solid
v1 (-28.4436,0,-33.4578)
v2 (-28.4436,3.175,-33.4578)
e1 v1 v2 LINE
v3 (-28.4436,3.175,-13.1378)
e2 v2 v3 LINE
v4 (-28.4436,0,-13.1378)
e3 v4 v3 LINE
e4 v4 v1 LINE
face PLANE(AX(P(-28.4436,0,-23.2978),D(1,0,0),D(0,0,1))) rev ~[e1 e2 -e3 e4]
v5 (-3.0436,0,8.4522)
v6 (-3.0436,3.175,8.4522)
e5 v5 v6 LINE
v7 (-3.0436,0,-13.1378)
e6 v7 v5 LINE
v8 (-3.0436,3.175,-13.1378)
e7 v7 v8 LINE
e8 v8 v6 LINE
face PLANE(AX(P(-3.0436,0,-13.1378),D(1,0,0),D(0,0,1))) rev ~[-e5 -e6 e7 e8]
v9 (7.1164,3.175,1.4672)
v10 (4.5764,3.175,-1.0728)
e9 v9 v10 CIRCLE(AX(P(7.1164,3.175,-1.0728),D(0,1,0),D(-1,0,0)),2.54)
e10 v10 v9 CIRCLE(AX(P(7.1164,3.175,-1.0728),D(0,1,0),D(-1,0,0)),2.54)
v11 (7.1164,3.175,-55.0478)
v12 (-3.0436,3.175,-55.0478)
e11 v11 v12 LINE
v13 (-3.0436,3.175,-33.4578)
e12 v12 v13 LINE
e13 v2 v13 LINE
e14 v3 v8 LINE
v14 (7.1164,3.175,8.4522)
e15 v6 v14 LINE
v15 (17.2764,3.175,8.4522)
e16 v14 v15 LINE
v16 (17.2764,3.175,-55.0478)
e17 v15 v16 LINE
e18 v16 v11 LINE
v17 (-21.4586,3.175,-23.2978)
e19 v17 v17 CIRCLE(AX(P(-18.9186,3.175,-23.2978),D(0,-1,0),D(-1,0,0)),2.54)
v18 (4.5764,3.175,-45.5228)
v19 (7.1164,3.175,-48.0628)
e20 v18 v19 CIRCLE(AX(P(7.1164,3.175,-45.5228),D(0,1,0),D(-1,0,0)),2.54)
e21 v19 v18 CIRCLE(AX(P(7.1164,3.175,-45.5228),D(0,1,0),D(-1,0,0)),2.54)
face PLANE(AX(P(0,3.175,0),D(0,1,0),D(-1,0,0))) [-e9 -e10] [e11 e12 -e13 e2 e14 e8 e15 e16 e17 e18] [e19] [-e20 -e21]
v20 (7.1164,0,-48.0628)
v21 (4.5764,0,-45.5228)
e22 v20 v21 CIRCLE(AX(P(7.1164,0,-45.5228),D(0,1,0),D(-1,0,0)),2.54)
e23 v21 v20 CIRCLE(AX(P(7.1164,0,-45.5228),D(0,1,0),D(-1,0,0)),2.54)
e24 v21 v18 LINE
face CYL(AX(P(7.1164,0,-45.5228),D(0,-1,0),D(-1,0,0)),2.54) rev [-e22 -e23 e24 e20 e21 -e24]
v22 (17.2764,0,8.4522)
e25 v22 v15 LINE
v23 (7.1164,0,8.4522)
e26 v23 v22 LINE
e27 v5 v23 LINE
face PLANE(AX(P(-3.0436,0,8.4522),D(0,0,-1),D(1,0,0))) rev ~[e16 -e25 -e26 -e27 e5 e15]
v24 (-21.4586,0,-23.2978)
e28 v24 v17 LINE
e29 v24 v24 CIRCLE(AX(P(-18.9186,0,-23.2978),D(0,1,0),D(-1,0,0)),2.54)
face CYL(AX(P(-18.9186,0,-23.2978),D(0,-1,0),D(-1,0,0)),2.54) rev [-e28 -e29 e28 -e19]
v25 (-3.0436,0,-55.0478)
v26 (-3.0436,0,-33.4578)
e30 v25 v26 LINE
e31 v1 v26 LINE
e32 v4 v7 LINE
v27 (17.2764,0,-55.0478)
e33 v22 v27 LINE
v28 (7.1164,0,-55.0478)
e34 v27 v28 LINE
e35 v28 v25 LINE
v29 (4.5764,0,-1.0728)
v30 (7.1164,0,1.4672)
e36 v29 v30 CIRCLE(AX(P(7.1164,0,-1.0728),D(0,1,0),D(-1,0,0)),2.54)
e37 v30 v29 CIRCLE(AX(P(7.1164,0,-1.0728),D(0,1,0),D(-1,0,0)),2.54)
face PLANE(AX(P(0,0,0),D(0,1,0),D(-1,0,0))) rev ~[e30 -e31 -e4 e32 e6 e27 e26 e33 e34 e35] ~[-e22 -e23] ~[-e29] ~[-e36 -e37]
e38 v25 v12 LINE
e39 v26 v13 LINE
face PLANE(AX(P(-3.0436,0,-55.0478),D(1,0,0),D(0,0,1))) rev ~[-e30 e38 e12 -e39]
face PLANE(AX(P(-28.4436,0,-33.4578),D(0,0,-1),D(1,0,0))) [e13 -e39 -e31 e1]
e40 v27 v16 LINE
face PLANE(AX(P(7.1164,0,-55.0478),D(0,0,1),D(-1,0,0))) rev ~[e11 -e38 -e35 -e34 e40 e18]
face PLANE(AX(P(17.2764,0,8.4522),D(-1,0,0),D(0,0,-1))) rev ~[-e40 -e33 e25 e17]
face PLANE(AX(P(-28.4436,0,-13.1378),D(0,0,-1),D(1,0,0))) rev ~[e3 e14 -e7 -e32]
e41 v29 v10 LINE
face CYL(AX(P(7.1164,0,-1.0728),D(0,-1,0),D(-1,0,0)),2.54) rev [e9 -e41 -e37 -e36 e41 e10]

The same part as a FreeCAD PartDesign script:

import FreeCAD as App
import Part
import Sketcher
Q = App.Units.Quantity


def add_polygon(sketch, points):
    """Adds a closed chain of lines whose ends are joined by coincident constraints."""
    first, n = sketch.GeometryCount, len(points)
    for a, b in zip(points, points[1:] + points[:1]):
        sketch.addGeometry(Part.LineSegment(App.Vector(*a, 0), App.Vector(*b, 0)), False)
    for i in range(n):
        sketch.addConstraint(Sketcher.Constraint("Coincident", first + i, 2, first + (i + 1) % n, 1))

doc = App.newDocument("Part")
body = doc.addObject("PartDesign::Body", "Body")

# Sketch on XZ plane
sketch1 = body.newObject("Sketcher::SketchObject", "Sketch")
sketch1.AttachmentSupport = (doc.getObject("XZ_Plane"), [""])
sketch1.MapMode = "FlatFace"
add_polygon(sketch1, [(-3, -13.1), (-3, 8.5), (7.1, 8.5), (17.3, 8.5), (17.3, -55), (7.1, -55), (-3, -55), (-3, -33.5), (-28.4, -33.5), (-28.4, -13.1)])  # lines 0-9
sketch1.addGeometry(Part.Circle(App.Vector(7.1, -45.5, 0), App.Vector(0, 0, 1), 2.5), False)  # 10
sketch1.addGeometry(Part.Circle(App.Vector(7.1, -1.1, 0), App.Vector(0, 0, 1), 2.5), False)  # 11
sketch1.addGeometry(Part.Circle(App.Vector(-18.9, -23.3, 0), App.Vector(0, 0, 1), 2.5), False)  # 12
sketch1.addConstraint([
    Sketcher.Constraint("Vertical", 0),
    Sketcher.Constraint("Horizontal", 1),
    Sketcher.Constraint("Horizontal", 2),
    Sketcher.Constraint("Vertical", 3),
    Sketcher.Constraint("Horizontal", 4),
    Sketcher.Constraint("Horizontal", 5),
    Sketcher.Constraint("Vertical", 6),
    Sketcher.Constraint("Horizontal", 7),
    Sketcher.Constraint("Vertical", 8),
    Sketcher.Constraint("Horizontal", 9),
    Sketcher.Constraint("Equal", 10, 11),
    Sketcher.Constraint("Equal", 11, 12),
    Sketcher.Constraint("Vertical", 10, 3, 11, 3),
    Sketcher.Constraint("Vertical", 11, 3, 1, 2),
    Sketcher.Constraint("Vertical", 1, 2, 4, 2),
    Sketcher.Constraint("Vertical", 0, 2, 5, 2),
    Sketcher.Constraint("Equal", 1, 2),
    Sketcher.Constraint("Equal", 0, 6),
    Sketcher.Constraint("Diameter", 10, Q("0.2 in")),
    Sketcher.Constraint("DistanceX", 7, 2, 7, 1, Q("1 in")),
    Sketcher.Constraint("DistanceX", 1, 1, 1, 2, Q("0.4 in")),
    Sketcher.Constraint("DistanceY", 3, 2, 3, 1, Q("2.5 in")),
    Sketcher.Constraint("DistanceY", 8, 1, 8, 2, Q("0.8 in")),
    Sketcher.Constraint("DistanceY", 6, 2, 12, 3, Q("0.4 in")),
    Sketcher.Constraint("DistanceY", 11, 3, 0, 2, Q("0.375 in")),
    Sketcher.Constraint("DistanceY", 3, 2, 10, 3, Q("0.375 in")),
    Sketcher.Constraint("DistanceX", 7, 2, 12, 3, Q("0.375 in")),
    Sketcher.Constraint("DistanceX", -1, 1, 10, 3, 7.1164),
    Sketcher.Constraint("DistanceY", 10, 3, -1, 1, 45.5228),
])
pad1 = body.newObject("PartDesign::Pad", "Pad")
pad1.Profile = sketch1
pad1.Length = Q("0.125 in")
pad1.Reversed = True

doc.recompute()
